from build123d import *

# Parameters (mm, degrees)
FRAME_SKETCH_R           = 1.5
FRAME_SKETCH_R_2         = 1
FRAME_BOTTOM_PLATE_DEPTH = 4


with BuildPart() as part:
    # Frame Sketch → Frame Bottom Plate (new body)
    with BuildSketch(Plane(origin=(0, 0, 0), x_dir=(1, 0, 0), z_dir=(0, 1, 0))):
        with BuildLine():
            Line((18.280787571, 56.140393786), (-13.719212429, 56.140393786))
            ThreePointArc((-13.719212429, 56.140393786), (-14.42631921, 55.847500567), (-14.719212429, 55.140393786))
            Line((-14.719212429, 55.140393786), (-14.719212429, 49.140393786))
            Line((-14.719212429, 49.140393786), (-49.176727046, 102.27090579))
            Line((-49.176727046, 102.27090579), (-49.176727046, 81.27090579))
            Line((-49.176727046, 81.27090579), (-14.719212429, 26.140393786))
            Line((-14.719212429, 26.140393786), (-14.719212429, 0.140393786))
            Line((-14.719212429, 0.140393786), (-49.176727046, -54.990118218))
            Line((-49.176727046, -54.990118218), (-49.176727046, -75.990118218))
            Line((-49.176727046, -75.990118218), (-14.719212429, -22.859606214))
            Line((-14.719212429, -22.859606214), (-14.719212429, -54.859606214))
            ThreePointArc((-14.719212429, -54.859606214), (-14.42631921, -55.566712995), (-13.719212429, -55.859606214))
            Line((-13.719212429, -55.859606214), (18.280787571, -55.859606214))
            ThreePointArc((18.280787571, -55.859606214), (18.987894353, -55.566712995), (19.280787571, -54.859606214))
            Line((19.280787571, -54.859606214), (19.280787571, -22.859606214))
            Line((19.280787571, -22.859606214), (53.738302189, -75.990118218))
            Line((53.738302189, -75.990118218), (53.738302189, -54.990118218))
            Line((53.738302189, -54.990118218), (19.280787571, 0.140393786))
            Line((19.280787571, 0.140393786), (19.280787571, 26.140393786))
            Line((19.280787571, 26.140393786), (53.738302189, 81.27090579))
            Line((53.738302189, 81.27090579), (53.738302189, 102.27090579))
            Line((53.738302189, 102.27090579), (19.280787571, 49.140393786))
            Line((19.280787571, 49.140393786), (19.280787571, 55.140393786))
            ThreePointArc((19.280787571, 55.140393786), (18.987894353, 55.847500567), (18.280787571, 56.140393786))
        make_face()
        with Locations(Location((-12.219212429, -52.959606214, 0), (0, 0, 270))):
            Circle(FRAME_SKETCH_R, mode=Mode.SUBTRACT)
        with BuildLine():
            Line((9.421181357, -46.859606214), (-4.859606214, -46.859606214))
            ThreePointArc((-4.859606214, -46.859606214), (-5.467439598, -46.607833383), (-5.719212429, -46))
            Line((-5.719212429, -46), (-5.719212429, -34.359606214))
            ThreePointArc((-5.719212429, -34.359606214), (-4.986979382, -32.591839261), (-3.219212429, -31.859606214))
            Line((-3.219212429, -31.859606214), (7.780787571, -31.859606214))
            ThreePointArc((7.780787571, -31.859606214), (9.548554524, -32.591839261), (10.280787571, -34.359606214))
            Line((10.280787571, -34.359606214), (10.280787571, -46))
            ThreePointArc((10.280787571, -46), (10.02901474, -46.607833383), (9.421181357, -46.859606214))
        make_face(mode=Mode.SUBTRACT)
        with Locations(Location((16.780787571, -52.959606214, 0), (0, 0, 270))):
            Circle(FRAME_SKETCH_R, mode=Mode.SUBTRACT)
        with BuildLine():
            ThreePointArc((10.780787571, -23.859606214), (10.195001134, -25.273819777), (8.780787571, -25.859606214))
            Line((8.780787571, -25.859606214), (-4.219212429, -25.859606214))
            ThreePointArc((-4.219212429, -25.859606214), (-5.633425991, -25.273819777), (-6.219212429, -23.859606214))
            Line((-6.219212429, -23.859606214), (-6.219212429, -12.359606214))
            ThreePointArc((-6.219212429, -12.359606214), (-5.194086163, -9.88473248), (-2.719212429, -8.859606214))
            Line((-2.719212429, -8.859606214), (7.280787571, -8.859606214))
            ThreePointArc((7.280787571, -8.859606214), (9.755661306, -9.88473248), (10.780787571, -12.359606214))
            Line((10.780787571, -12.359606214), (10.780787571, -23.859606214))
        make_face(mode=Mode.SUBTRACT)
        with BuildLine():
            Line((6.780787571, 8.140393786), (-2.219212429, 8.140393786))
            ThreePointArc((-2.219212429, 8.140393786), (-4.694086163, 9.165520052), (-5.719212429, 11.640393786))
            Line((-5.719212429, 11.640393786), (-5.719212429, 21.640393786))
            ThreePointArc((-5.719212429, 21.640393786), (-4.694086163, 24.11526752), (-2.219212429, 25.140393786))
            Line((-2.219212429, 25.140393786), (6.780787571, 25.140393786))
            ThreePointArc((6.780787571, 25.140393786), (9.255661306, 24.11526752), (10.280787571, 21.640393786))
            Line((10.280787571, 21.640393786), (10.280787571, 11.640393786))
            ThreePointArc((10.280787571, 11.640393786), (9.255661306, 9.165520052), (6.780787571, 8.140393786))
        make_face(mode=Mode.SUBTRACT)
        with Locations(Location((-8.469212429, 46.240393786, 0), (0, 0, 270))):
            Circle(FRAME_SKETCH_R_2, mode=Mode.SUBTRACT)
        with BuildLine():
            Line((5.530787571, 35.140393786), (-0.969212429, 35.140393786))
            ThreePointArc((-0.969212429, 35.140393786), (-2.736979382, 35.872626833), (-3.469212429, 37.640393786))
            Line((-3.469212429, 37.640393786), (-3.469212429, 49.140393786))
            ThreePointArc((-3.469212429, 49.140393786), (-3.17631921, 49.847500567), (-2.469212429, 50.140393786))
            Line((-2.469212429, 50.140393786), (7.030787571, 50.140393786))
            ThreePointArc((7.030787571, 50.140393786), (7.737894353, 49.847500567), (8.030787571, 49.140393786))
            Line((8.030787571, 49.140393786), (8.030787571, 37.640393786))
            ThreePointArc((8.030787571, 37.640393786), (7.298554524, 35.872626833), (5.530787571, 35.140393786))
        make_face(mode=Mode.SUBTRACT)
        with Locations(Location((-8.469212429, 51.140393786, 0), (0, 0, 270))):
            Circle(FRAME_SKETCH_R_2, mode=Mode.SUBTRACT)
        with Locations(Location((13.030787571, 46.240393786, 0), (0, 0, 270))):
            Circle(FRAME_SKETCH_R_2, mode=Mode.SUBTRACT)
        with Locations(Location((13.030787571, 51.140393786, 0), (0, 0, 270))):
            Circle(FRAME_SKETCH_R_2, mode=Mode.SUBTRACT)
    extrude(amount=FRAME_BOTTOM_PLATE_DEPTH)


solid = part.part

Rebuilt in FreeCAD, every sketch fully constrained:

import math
import FreeCAD as App
import Part
import Sketcher
from FreeCAD import Vector
Q = App.Units.Quantity

doc = App.newDocument("Part")
body = doc.addObject("PartDesign::Body", "Body")

# Sketch on XZ plane
sketch1 = body.newObject("Sketcher::SketchObject", "Sketch")
sketch1.AttachmentSupport = (doc.getObject("XZ_Plane"), [""])
sketch1.MapMode = "FlatFace"
sketch1.addGeometry(Part.LineSegment(Vector(18.3, -56.1, 0), Vector(-13.7, -56.1, 0)), False)
sketch1.addGeometry(Part.ArcOfCircle(Part.Circle(Vector(-13.7, -55.1, 0), Vector(0, 0, 1), 1), math.radians(-180), math.radians(-90)), False)
sketch1.addGeometry(Part.LineSegment(Vector(-14.7, -55.1, 0), Vector(-14.7, -49.1, 0)), False)
sketch1.addGeometry(Part.LineSegment(Vector(-14.7, -49.1, 0), Vector(-49.2, -102.3, 0)), False)
sketch1.addGeometry(Part.LineSegment(Vector(-49.2, -102.3, 0), Vector(-49.2, -81.3, 0)), False)
sketch1.addGeometry(Part.LineSegment(Vector(-49.2, -81.3, 0), Vector(-14.7, -26.1, 0)), False)
sketch1.addGeometry(Part.LineSegment(Vector(-14.7, -26.1, 0), Vector(-14.7, -0.1, 0)), False)
sketch1.addGeometry(Part.LineSegment(Vector(-14.7, -0.1, 0), Vector(-49.2, 55, 0)), False)
sketch1.addGeometry(Part.LineSegment(Vector(-49.2, 55, 0), Vector(-49.2, 76, 0)), False)
sketch1.addGeometry(Part.LineSegment(Vector(-49.2, 76, 0), Vector(-14.7, 22.9, 0)), False)
sketch1.addGeometry(Part.LineSegment(Vector(-14.7, 22.9, 0), Vector(-14.7, 54.9, 0)), False)
sketch1.addGeometry(Part.ArcOfCircle(Part.Circle(Vector(-13.7, 54.9, 0), Vector(0, 0, 1), 1), math.radians(90), math.radians(180)), False)
sketch1.addGeometry(Part.LineSegment(Vector(-13.7, 55.9, 0), Vector(18.3, 55.9, 0)), False)
sketch1.addGeometry(Part.ArcOfCircle(Part.Circle(Vector(18.3, 54.9, 0), Vector(0, 0, 1), 1), math.radians(0), math.radians(90)), False)
sketch1.addGeometry(Part.LineSegment(Vector(19.3, 54.9, 0), Vector(19.3, 22.9, 0)), False)
sketch1.addGeometry(Part.LineSegment(Vector(19.3, 22.9, 0), Vector(53.7, 76, 0)), False)
sketch1.addGeometry(Part.LineSegment(Vector(53.7, 76, 0), Vector(53.7, 55, 0)), False)
sketch1.addGeometry(Part.LineSegment(Vector(53.7, 55, 0), Vector(19.3, -0.1, 0)), False)
sketch1.addGeometry(Part.LineSegment(Vector(19.3, -0.1, 0), Vector(19.3, -26.1, 0)), False)
sketch1.addGeometry(Part.LineSegment(Vector(19.3, -26.1, 0), Vector(53.7, -81.3, 0)), False)
sketch1.addGeometry(Part.LineSegment(Vector(53.7, -81.3, 0), Vector(53.7, -102.3, 0)), False)
sketch1.addGeometry(Part.LineSegment(Vector(53.7, -102.3, 0), Vector(19.3, -49.1, 0)), False)
sketch1.addGeometry(Part.LineSegment(Vector(19.3, -49.1, 0), Vector(19.3, -55.1, 0)), False)
sketch1.addGeometry(Part.ArcOfCircle(Part.Circle(Vector(18.3, -55.1, 0), Vector(0, 0, 1), 1), math.radians(-90), math.radians(0)), False)
sketch1.addGeometry(Part.Circle(Vector(-12.2, 53, 0), Vector(0, 0, 1), 1.5), False)
sketch1.addGeometry(Part.ArcOfCircle(Part.Circle(Vector(9.4, 46, 0), Vector(0, 0, 1), 0.9), math.radians(0), math.radians(90)), False)
sketch1.addGeometry(Part.LineSegment(Vector(9.4, 46.9, 0), Vector(-4.9, 46.9, 0)), False)
sketch1.addGeometry(Part.ArcOfCircle(Part.Circle(Vector(-4.9, 46, 0), Vector(0, 0, 1), 0.9), math.radians(90), math.radians(180)), False)
sketch1.addGeometry(Part.LineSegment(Vector(-5.7, 46, 0), Vector(-5.7, 34.4, 0)), False)
sketch1.addGeometry(Part.ArcOfCircle(Part.Circle(Vector(-3.2, 34.4, 0), Vector(0, 0, 1), 2.5), math.radians(180), math.radians(270)), False)
sketch1.addGeometry(Part.LineSegment(Vector(-3.2, 31.9, 0), Vector(7.8, 31.9, 0)), False)
sketch1.addGeometry(Part.ArcOfCircle(Part.Circle(Vector(7.8, 34.4, 0), Vector(0, 0, 1), 2.5), math.radians(-90), math.radians(0)), False)
sketch1.addGeometry(Part.LineSegment(Vector(10.3, 34.4, 0), Vector(10.3, 46, 0)), False)
sketch1.addGeometry(Part.Circle(Vector(16.8, 53, 0), Vector(0, 0, 1), 1.5), False)
sketch1.addGeometry(Part.LineSegment(Vector(10.8, 12.4, 0), Vector(10.8, 23.9, 0)), False)
sketch1.addGeometry(Part.ArcOfCircle(Part.Circle(Vector(8.8, 23.9, 0), Vector(0, 0, 1), 2), math.radians(0), math.radians(90)), False)
sketch1.addGeometry(Part.LineSegment(Vector(8.8, 25.9, 0), Vector(-4.2, 25.9, 0)), False)
sketch1.addGeometry(Part.ArcOfCircle(Part.Circle(Vector(-4.2, 23.9, 0), Vector(0, 0, 1), 2), math.radians(90), math.radians(180)), False)
sketch1.addGeometry(Part.LineSegment(Vector(-6.2, 23.9, 0), Vector(-6.2, 12.4, 0)), False)
sketch1.addGeometry(Part.ArcOfCircle(Part.Circle(Vector(-2.7, 12.4, 0), Vector(0, 0, 1), 3.5), math.radians(-180), math.radians(-90)), False)
sketch1.addGeometry(Part.LineSegment(Vector(-2.7, 8.9, 0), Vector(7.3, 8.9, 0)), False)
sketch1.addGeometry(Part.ArcOfCircle(Part.Circle(Vector(7.3, 12.4, 0), Vector(0, 0, 1), 3.5), math.radians(-90), math.radians(0)), False)
sketch1.addGeometry(Part.Circle(Vector(-8.5, -46.2, 0), Vector(0, 0, 1), 1), False)
sketch1.addGeometry(Part.Circle(Vector(-8.5, -51.1, 0), Vector(0, 0, 1), 1), False)
sketch1.addGeometry(Part.ArcOfCircle(Part.Circle(Vector(6.8, -11.6, 0), Vector(0, 0, 1), 3.5), math.radians(0), math.radians(90)), False)
sketch1.addGeometry(Part.LineSegment(Vector(6.8, -8.1, 0), Vector(-2.2, -8.1, 0)), False)
sketch1.addGeometry(Part.ArcOfCircle(Part.Circle(Vector(-2.2, -11.6, 0), Vector(0, 0, 1), 3.5), math.radians(90), math.radians(180)), False)
sketch1.addGeometry(Part.LineSegment(Vector(-5.7, -11.6, 0), Vector(-5.7, -21.6, 0)), False)
sketch1.addGeometry(Part.ArcOfCircle(Part.Circle(Vector(-2.2, -21.6, 0), Vector(0, 0, 1), 3.5), math.radians(-180), math.radians(-90)), False)
sketch1.addGeometry(Part.LineSegment(Vector(-2.2, -25.1, 0), Vector(6.8, -25.1, 0)), False)
sketch1.addGeometry(Part.ArcOfCircle(Part.Circle(Vector(6.8, -21.6, 0), Vector(0, 0, 1), 3.5), math.radians(-90), math.radians(0)), False)
sketch1.addGeometry(Part.LineSegment(Vector(10.3, -21.6, 0), Vector(10.3, -11.6, 0)), False)
sketch1.addGeometry(Part.ArcOfCircle(Part.Circle(Vector(5.5, -37.6, 0), Vector(0, 0, 1), 2.5), math.radians(0), math.radians(90)), False)
sketch1.addGeometry(Part.LineSegment(Vector(5.5, -35.1, 0), Vector(-1, -35.1, 0)), False)
sketch1.addGeometry(Part.ArcOfCircle(Part.Circle(Vector(-1, -37.6, 0), Vector(0, 0, 1), 2.5), math.radians(90), math.radians(180)), False)
sketch1.addGeometry(Part.LineSegment(Vector(-3.5, -37.6, 0), Vector(-3.5, -49.1, 0)), False)
sketch1.addGeometry(Part.ArcOfCircle(Part.Circle(Vector(-2.5, -49.1, 0), Vector(0, 0, 1), 1), math.radians(-180), math.radians(-90)), False)
sketch1.addGeometry(Part.LineSegment(Vector(-2.5, -50.1, 0), Vector(7, -50.1, 0)), False)
sketch1.addGeometry(Part.ArcOfCircle(Part.Circle(Vector(7, -49.1, 0), Vector(0, 0, 1), 1), math.radians(-90), math.radians(0)), False)
sketch1.addGeometry(Part.LineSegment(Vector(8, -49.1, 0), Vector(8, -37.6, 0)), False)
sketch1.addGeometry(Part.Circle(Vector(13, -46.2, 0), Vector(0, 0, 1), 1), False)
sketch1.addGeometry(Part.Circle(Vector(13, -51.1, 0), Vector(0, 0, 1), 1), False)
sketch1.addConstraint(Sketcher.Constraint("Tangent", 0, 2, 1, 2))
sketch1.addConstraint(Sketcher.Constraint("Tangent", 1, 1, 2, 1))
sketch1.addConstraint(Sketcher.Constraint("Coincident", 2, 2, 3, 1))
sketch1.addConstraint(Sketcher.Constraint("Coincident", 3, 2, 4, 1))
sketch1.addConstraint(Sketcher.Constraint("Coincident", 4, 2, 5, 1))
sketch1.addConstraint(Sketcher.Constraint("Coincident", 5, 2, 6, 1))
sketch1.addConstraint(Sketcher.Constraint("Coincident", 6, 2, 7, 1))
sketch1.addConstraint(Sketcher.Constraint("Coincident", 7, 2, 8, 1))
sketch1.addConstraint(Sketcher.Constraint("Coincident", 8, 2, 9, 1))
sketch1.addConstraint(Sketcher.Constraint("Coincident", 9, 2, 10, 1))
sketch1.addConstraint(Sketcher.Constraint("Tangent", 10, 2, 11, 2))
sketch1.addConstraint(Sketcher.Constraint("Tangent", 11, 1, 12, 1))
sketch1.addConstraint(Sketcher.Constraint("Tangent", 12, 2, 13, 2))
sketch1.addConstraint(Sketcher.Constraint("Tangent", 13, 1, 14, 1))
sketch1.addConstraint(Sketcher.Constraint("Coincident", 14, 2, 15, 1))
sketch1.addConstraint(Sketcher.Constraint("Coincident", 15, 2, 16, 1))
sketch1.addConstraint(Sketcher.Constraint("Coincident", 16, 2, 17, 1))
sketch1.addConstraint(Sketcher.Constraint("Coincident", 17, 2, 18, 1))
sketch1.addConstraint(Sketcher.Constraint("Coincident", 18, 2, 19, 1))
sketch1.addConstraint(Sketcher.Constraint("Coincident", 19, 2, 20, 1))
sketch1.addConstraint(Sketcher.Constraint("Coincident", 20, 2, 21, 1))
sketch1.addConstraint(Sketcher.Constraint("Coincident", 21, 2, 22, 1))
sketch1.addConstraint(Sketcher.Constraint("Tangent", 22, 2, 23, 2))
sketch1.addConstraint(Sketcher.Constraint("Tangent", 23, 1, 0, 1))
sketch1.addConstraint(Sketcher.Constraint("Tangent", 25, 2, 26, 1))
sketch1.addConstraint(Sketcher.Constraint("Tangent", 26, 2, 27, 1))
sketch1.addConstraint(Sketcher.Constraint("Tangent", 27, 2, 28, 1))
sketch1.addConstraint(Sketcher.Constraint("Tangent", 28, 2, 29, 1))
sketch1.addConstraint(Sketcher.Constraint("Tangent", 29, 2, 30, 1))
sketch1.addConstraint(Sketcher.Constraint("Tangent", 30, 2, 31, 1))
sketch1.addConstraint(Sketcher.Constraint("Tangent", 31, 2, 32, 1))
sketch1.addConstraint(Sketcher.Constraint("Tangent", 32, 2, 25, 1))
sketch1.addConstraint(Sketcher.Constraint("Tangent", 34, 2, 35, 1))
sketch1.addConstraint(Sketcher.Constraint("Tangent", 35, 2, 36, 1))
sketch1.addConstraint(Sketcher.Constraint("Tangent", 36, 2, 37, 1))
sketch1.addConstraint(Sketcher.Constraint("Tangent", 37, 2, 38, 1))
sketch1.addConstraint(Sketcher.Constraint("Tangent", 38, 2, 39, 1))
sketch1.addConstraint(Sketcher.Constraint("Tangent", 39, 2, 40, 1))
sketch1.addConstraint(Sketcher.Constraint("Tangent", 40, 2, 41, 1))
sketch1.addConstraint(Sketcher.Constraint("Tangent", 41, 2, 34, 1))
sketch1.addConstraint(Sketcher.Constraint("Tangent", 44, 2, 45, 1))
sketch1.addConstraint(Sketcher.Constraint("Tangent", 45, 2, 46, 1))
sketch1.addConstraint(Sketcher.Constraint("Tangent", 46, 2, 47, 1))
sketch1.addConstraint(Sketcher.Constraint("Tangent", 47, 2, 48, 1))
sketch1.addConstraint(Sketcher.Constraint("Tangent", 48, 2, 49, 1))
sketch1.addConstraint(Sketcher.Constraint("Tangent", 49, 2, 50, 1))
sketch1.addConstraint(Sketcher.Constraint("Tangent", 50, 2, 51, 1))
sketch1.addConstraint(Sketcher.Constraint("Tangent", 51, 2, 44, 1))
sketch1.addConstraint(Sketcher.Constraint("Tangent", 52, 2, 53, 1))
sketch1.addConstraint(Sketcher.Constraint("Tangent", 53, 2, 54, 1))
sketch1.addConstraint(Sketcher.Constraint("Tangent", 54, 2, 55, 1))
sketch1.addConstraint(Sketcher.Constraint("Tangent", 55, 2, 56, 1))
sketch1.addConstraint(Sketcher.Constraint("Tangent", 56, 2, 57, 1))
sketch1.addConstraint(Sketcher.Constraint("Tangent", 57, 2, 58, 1))
sketch1.addConstraint(Sketcher.Constraint("Tangent", 58, 2, 59, 1))
sketch1.addConstraint(Sketcher.Constraint("Tangent", 59, 2, 52, 1))
sketch1.addConstraint(Sketcher.Constraint("Horizontal", 0))
sketch1.addConstraint(Sketcher.Constraint("Vertical", 2))
sketch1.addConstraint(Sketcher.Constraint("Vertical", 4))
sketch1.addConstraint(Sketcher.Constraint("Vertical", 6))
sketch1.addConstraint(Sketcher.Constraint("Vertical", 8))
sketch1.addConstraint(Sketcher.Constraint("Vertical", 10))
sketch1.addConstraint(Sketcher.Constraint("Horizontal", 12))
sketch1.addConstraint(Sketcher.Constraint("Vertical", 14))
sketch1.addConstraint(Sketcher.Constraint("Vertical", 16))
sketch1.addConstraint(Sketcher.Constraint("Vertical", 18))
sketch1.addConstraint(Sketcher.Constraint("Vertical", 20))
sketch1.addConstraint(Sketcher.Constraint("Vertical", 22))
sketch1.addConstraint(Sketcher.Constraint("Horizontal", 26))
sketch1.addConstraint(Sketcher.Constraint("Vertical", 28))
sketch1.addConstraint(Sketcher.Constraint("Horizontal", 30))
sketch1.addConstraint(Sketcher.Constraint("Vertical", 32))
sketch1.addConstraint(Sketcher.Constraint("Vertical", 34))
sketch1.addConstraint(Sketcher.Constraint("Horizontal", 36))
sketch1.addConstraint(Sketcher.Constraint("Vertical", 38))
sketch1.addConstraint(Sketcher.Constraint("Horizontal", 40))
sketch1.addConstraint(Sketcher.Constraint("Horizontal", 45))
sketch1.addConstraint(Sketcher.Constraint("Vertical", 47))
sketch1.addConstraint(Sketcher.Constraint("Horizontal", 49))
sketch1.addConstraint(Sketcher.Constraint("Vertical", 51))
sketch1.addConstraint(Sketcher.Constraint("Horizontal", 53))
sketch1.addConstraint(Sketcher.Constraint("Vertical", 55))
sketch1.addConstraint(Sketcher.Constraint("Horizontal", 57))
sketch1.addConstraint(Sketcher.Constraint("Vertical", 59))
sketch1.addConstraint(Sketcher.Constraint("Equal", 1, 11))
sketch1.addConstraint(Sketcher.Constraint("Equal", 11, 13))
sketch1.addConstraint(Sketcher.Constraint("Equal", 13, 23))
sketch1.addConstraint(Sketcher.Constraint("Equal", 25, 27))
sketch1.addConstraint(Sketcher.Constraint("Equal", 29, 31))
sketch1.addConstraint(Sketcher.Constraint("Equal", 24, 33))
sketch1.addConstraint(Sketcher.Constraint("Equal", 35, 37))
sketch1.addConstraint(Sketcher.Constraint("Equal", 39, 41))
sketch1.addConstraint(Sketcher.Constraint("Equal", 23, 42))
sketch1.addConstraint(Sketcher.Constraint("Equal", 42, 43))
sketch1.addConstraint(Sketcher.Constraint("Equal", 41, 44))
sketch1.addConstraint(Sketcher.Constraint("Equal", 44, 46))
sketch1.addConstraint(Sketcher.Constraint("Equal", 46, 48))
sketch1.addConstraint(Sketcher.Constraint("Equal", 48, 50))
sketch1.addConstraint(Sketcher.Constraint("Equal", 31, 52))
sketch1.addConstraint(Sketcher.Constraint("Equal", 52, 54))
sketch1.addConstraint(Sketcher.Constraint("Equal", 43, 56))
sketch1.addConstraint(Sketcher.Constraint("Equal", 56, 58))
sketch1.addConstraint(Sketcher.Constraint("Equal", 58, 60))
sketch1.addConstraint(Sketcher.Constraint("Equal", 60, 61))
sketch1.addConstraint(Sketcher.Constraint("Parallel", 3, 15))
sketch1.addConstraint(Sketcher.Constraint("Parallel", 5, 17))
sketch1.addConstraint(Sketcher.Constraint("Parallel", 7, 19))
sketch1.addConstraint(Sketcher.Constraint("Parallel", 9, 21))
sketch1.addConstraint(Sketcher.Constraint("Horizontal", 24, 3, 33, 3))
sketch1.addConstraint(Sketcher.Constraint("Horizontal", 42, 3, 60, 3))
sketch1.addConstraint(Sketcher.Constraint("Horizontal", 43, 3, 61, 3))
sketch1.addConstraint(Sketcher.Constraint("Horizontal", 58, 3, 2, 2))
sketch1.addConstraint(Sketcher.Constraint("Horizontal", 9, 2, 14, 2))
sketch1.addConstraint(Sketcher.Constraint("Horizontal", 8, 2, 15, 2))
sketch1.addConstraint(Sketcher.Constraint("Horizontal", 7, 2, 16, 2))
sketch1.addConstraint(Sketcher.Constraint("Horizontal", 6, 2, 17, 2))
sketch1.addConstraint(Sketcher.Constraint("Horizontal", 5, 2, 18, 2))
sketch1.addConstraint(Sketcher.Constraint("Horizontal", 4, 2, 19, 2))
sketch1.addConstraint(Sketcher.Constraint("Horizontal", 3, 2, 20, 2))
sketch1.addConstraint(Sketcher.Constraint("Horizontal", 2, 2, 21, 2))
sketch1.addConstraint(Sketcher.Constraint("Vertical", 1, 3, 11, 3))
sketch1.addConstraint(Sketcher.Constraint("Vertical", 13, 3, 23, 3))
sketch1.addConstraint(Sketcher.Constraint("Vertical", 42, 3, 43, 3))
sketch1.addConstraint(Sketcher.Constraint("Vertical", 60, 3, 61, 3))
sketch1.addConstraint(Sketcher.Constraint("Vertical", 2, 2, 5, 2))
sketch1.addConstraint(Sketcher.Constraint("Vertical", 4, 2, 7, 2))
sketch1.addConstraint(Sketcher.Constraint("Vertical", 16, 2, 19, 2))
sketch1.addConstraint(Sketcher.Constraint("Vertical", 28, 2, 46, 2))
sketch1.addConstraint(Sketcher.Constraint("Vertical", 32, 2, 50, 2))
sketch1.addConstraint(Sketcher.Constraint("Equal", 4, 8))
sketch1.addConstraint(Sketcher.Constraint("Equal", 12, 10))
sketch1.addConstraint(Sketcher.Constraint("Equal", 40, 47))
sketch1.addConstraint(Sketcher.Constraint("Equal", 38, 55))
sketch1.addConstraint(Sketcher.Constraint("Diameter", 24, Q("3 mm")))
sketch1.addConstraint(Sketcher.Constraint("Diameter", 42, Q("2 mm")))
sketch1.addConstraint(Sketcher.Constraint("Radius", 35, Q("2 mm")))
sketch1.addConstraint(Sketcher.Constraint("Radius", 29, Q("2.5 mm")))
sketch1.addConstraint(Sketcher.Constraint("Radius", 39, Q("3.5 mm")))
sketch1.addConstraint(Sketcher.Constraint("DistanceX", 0, 2, 0, 1, Q("32 mm")))
sketch1.addConstraint(Sketcher.Constraint("DistanceX", 30, 1, 30, 2, Q("11 mm")))
sketch1.addConstraint(Sketcher.Constraint("DistanceX", 36, 2, 36, 1, Q("13 mm")))
sketch1.addConstraint(Sketcher.Constraint("DistanceY", 2, 1, 2, 2, Q("6 mm")))
sketch1.addConstraint(Sketcher.Constraint("DistanceY", 4, 1, 4, 2, Q("21 mm")))
sketch1.addConstraint(Sketcher.Constraint("DistanceY", 6, 1, 6, 2, Q("26 mm")))
sketch1.addConstraint(Sketcher.Constraint("DistanceX", 53, 2, 53, 1, Q("6.5 mm")))
sketch1.addConstraint(Sketcher.Constraint("DistanceY", 34, 1, 34, 2, Q("11.5 mm")))
sketch1.addConstraint(Sketcher.Constraint("DistanceY", -1, 1, 25, 3, Q("46 mm")))
sketch1.addConstraint(Sketcher.Constraint("Radius", 25, Q("0.859606 mm")))
sketch1.addConstraint(Sketcher.Constraint("DistanceY", 28, 2, 28, 1, Q("11.640394 mm")))
sketch1.addConstraint(Sketcher.Constraint("DistanceX", -1, 1, 25, 3, Q("9.421181 mm")))
sketch1.addConstraint(Sketcher.Constraint("DistanceY", -1, 1, 7, 2, Q("54.990118 mm")))
sketch1.addConstraint(Sketcher.Constraint("Distance", 3, Q("63.325916 mm")))
sketch1.addConstraint(Sketcher.Constraint("Distance", 5, Q("65.013027 mm")))
sketch1.addConstraint(Sketcher.Constraint("DistanceX", 1, 3, -1, 1, Q("13.719212 mm")))
sketch1.addConstraint(Sketcher.Constraint("DistanceY", 1, 3, -1, 1, Q("55.140394 mm")))
sketch1.addConstraint(Sketcher.Constraint("DistanceX", 24, 3, -1, 1, Q("12.219212 mm")))
sketch1.addConstraint(Sketcher.Constraint("DistanceY", -1, 1, 24, 3, Q("52.959606 mm")))
sketch1.addConstraint(Sketcher.Constraint("DistanceX", -1, 1, 33, 3, Q("16.780788 mm")))
sketch1.addConstraint(Sketcher.Constraint("DistanceX", -1, 1, 35, 3, Q("8.780788 mm")))
sketch1.addConstraint(Sketcher.Constraint("DistanceY", -1, 1, 35, 3, Q("23.859606 mm")))
sketch1.addConstraint(Sketcher.Constraint("DistanceX", 42, 3, -1, 1, Q("8.469212 mm")))
sketch1.addConstraint(Sketcher.Constraint("DistanceY", 42, 3, -1, 1, Q("46.240394 mm")))
sketch1.addConstraint(Sketcher.Constraint("DistanceY", 43, 3, -1, 1, Q("51.140394 mm")))
sketch1.addConstraint(Sketcher.Constraint("DistanceY", 44, 3, -1, 1, Q("11.640394 mm")))
sketch1.addConstraint(Sketcher.Constraint("DistanceX", -1, 1, 52, 3, Q("5.530788 mm")))
sketch1.addConstraint(Sketcher.Constraint("DistanceX", -1, 1, 60, 3, Q("13.030788 mm")))
pad1 = body.newObject("PartDesign::Pad", "Pad")
pad1.Profile = sketch1
pad1.Length = 4
pad1.Reversed = True

doc.recompute()
